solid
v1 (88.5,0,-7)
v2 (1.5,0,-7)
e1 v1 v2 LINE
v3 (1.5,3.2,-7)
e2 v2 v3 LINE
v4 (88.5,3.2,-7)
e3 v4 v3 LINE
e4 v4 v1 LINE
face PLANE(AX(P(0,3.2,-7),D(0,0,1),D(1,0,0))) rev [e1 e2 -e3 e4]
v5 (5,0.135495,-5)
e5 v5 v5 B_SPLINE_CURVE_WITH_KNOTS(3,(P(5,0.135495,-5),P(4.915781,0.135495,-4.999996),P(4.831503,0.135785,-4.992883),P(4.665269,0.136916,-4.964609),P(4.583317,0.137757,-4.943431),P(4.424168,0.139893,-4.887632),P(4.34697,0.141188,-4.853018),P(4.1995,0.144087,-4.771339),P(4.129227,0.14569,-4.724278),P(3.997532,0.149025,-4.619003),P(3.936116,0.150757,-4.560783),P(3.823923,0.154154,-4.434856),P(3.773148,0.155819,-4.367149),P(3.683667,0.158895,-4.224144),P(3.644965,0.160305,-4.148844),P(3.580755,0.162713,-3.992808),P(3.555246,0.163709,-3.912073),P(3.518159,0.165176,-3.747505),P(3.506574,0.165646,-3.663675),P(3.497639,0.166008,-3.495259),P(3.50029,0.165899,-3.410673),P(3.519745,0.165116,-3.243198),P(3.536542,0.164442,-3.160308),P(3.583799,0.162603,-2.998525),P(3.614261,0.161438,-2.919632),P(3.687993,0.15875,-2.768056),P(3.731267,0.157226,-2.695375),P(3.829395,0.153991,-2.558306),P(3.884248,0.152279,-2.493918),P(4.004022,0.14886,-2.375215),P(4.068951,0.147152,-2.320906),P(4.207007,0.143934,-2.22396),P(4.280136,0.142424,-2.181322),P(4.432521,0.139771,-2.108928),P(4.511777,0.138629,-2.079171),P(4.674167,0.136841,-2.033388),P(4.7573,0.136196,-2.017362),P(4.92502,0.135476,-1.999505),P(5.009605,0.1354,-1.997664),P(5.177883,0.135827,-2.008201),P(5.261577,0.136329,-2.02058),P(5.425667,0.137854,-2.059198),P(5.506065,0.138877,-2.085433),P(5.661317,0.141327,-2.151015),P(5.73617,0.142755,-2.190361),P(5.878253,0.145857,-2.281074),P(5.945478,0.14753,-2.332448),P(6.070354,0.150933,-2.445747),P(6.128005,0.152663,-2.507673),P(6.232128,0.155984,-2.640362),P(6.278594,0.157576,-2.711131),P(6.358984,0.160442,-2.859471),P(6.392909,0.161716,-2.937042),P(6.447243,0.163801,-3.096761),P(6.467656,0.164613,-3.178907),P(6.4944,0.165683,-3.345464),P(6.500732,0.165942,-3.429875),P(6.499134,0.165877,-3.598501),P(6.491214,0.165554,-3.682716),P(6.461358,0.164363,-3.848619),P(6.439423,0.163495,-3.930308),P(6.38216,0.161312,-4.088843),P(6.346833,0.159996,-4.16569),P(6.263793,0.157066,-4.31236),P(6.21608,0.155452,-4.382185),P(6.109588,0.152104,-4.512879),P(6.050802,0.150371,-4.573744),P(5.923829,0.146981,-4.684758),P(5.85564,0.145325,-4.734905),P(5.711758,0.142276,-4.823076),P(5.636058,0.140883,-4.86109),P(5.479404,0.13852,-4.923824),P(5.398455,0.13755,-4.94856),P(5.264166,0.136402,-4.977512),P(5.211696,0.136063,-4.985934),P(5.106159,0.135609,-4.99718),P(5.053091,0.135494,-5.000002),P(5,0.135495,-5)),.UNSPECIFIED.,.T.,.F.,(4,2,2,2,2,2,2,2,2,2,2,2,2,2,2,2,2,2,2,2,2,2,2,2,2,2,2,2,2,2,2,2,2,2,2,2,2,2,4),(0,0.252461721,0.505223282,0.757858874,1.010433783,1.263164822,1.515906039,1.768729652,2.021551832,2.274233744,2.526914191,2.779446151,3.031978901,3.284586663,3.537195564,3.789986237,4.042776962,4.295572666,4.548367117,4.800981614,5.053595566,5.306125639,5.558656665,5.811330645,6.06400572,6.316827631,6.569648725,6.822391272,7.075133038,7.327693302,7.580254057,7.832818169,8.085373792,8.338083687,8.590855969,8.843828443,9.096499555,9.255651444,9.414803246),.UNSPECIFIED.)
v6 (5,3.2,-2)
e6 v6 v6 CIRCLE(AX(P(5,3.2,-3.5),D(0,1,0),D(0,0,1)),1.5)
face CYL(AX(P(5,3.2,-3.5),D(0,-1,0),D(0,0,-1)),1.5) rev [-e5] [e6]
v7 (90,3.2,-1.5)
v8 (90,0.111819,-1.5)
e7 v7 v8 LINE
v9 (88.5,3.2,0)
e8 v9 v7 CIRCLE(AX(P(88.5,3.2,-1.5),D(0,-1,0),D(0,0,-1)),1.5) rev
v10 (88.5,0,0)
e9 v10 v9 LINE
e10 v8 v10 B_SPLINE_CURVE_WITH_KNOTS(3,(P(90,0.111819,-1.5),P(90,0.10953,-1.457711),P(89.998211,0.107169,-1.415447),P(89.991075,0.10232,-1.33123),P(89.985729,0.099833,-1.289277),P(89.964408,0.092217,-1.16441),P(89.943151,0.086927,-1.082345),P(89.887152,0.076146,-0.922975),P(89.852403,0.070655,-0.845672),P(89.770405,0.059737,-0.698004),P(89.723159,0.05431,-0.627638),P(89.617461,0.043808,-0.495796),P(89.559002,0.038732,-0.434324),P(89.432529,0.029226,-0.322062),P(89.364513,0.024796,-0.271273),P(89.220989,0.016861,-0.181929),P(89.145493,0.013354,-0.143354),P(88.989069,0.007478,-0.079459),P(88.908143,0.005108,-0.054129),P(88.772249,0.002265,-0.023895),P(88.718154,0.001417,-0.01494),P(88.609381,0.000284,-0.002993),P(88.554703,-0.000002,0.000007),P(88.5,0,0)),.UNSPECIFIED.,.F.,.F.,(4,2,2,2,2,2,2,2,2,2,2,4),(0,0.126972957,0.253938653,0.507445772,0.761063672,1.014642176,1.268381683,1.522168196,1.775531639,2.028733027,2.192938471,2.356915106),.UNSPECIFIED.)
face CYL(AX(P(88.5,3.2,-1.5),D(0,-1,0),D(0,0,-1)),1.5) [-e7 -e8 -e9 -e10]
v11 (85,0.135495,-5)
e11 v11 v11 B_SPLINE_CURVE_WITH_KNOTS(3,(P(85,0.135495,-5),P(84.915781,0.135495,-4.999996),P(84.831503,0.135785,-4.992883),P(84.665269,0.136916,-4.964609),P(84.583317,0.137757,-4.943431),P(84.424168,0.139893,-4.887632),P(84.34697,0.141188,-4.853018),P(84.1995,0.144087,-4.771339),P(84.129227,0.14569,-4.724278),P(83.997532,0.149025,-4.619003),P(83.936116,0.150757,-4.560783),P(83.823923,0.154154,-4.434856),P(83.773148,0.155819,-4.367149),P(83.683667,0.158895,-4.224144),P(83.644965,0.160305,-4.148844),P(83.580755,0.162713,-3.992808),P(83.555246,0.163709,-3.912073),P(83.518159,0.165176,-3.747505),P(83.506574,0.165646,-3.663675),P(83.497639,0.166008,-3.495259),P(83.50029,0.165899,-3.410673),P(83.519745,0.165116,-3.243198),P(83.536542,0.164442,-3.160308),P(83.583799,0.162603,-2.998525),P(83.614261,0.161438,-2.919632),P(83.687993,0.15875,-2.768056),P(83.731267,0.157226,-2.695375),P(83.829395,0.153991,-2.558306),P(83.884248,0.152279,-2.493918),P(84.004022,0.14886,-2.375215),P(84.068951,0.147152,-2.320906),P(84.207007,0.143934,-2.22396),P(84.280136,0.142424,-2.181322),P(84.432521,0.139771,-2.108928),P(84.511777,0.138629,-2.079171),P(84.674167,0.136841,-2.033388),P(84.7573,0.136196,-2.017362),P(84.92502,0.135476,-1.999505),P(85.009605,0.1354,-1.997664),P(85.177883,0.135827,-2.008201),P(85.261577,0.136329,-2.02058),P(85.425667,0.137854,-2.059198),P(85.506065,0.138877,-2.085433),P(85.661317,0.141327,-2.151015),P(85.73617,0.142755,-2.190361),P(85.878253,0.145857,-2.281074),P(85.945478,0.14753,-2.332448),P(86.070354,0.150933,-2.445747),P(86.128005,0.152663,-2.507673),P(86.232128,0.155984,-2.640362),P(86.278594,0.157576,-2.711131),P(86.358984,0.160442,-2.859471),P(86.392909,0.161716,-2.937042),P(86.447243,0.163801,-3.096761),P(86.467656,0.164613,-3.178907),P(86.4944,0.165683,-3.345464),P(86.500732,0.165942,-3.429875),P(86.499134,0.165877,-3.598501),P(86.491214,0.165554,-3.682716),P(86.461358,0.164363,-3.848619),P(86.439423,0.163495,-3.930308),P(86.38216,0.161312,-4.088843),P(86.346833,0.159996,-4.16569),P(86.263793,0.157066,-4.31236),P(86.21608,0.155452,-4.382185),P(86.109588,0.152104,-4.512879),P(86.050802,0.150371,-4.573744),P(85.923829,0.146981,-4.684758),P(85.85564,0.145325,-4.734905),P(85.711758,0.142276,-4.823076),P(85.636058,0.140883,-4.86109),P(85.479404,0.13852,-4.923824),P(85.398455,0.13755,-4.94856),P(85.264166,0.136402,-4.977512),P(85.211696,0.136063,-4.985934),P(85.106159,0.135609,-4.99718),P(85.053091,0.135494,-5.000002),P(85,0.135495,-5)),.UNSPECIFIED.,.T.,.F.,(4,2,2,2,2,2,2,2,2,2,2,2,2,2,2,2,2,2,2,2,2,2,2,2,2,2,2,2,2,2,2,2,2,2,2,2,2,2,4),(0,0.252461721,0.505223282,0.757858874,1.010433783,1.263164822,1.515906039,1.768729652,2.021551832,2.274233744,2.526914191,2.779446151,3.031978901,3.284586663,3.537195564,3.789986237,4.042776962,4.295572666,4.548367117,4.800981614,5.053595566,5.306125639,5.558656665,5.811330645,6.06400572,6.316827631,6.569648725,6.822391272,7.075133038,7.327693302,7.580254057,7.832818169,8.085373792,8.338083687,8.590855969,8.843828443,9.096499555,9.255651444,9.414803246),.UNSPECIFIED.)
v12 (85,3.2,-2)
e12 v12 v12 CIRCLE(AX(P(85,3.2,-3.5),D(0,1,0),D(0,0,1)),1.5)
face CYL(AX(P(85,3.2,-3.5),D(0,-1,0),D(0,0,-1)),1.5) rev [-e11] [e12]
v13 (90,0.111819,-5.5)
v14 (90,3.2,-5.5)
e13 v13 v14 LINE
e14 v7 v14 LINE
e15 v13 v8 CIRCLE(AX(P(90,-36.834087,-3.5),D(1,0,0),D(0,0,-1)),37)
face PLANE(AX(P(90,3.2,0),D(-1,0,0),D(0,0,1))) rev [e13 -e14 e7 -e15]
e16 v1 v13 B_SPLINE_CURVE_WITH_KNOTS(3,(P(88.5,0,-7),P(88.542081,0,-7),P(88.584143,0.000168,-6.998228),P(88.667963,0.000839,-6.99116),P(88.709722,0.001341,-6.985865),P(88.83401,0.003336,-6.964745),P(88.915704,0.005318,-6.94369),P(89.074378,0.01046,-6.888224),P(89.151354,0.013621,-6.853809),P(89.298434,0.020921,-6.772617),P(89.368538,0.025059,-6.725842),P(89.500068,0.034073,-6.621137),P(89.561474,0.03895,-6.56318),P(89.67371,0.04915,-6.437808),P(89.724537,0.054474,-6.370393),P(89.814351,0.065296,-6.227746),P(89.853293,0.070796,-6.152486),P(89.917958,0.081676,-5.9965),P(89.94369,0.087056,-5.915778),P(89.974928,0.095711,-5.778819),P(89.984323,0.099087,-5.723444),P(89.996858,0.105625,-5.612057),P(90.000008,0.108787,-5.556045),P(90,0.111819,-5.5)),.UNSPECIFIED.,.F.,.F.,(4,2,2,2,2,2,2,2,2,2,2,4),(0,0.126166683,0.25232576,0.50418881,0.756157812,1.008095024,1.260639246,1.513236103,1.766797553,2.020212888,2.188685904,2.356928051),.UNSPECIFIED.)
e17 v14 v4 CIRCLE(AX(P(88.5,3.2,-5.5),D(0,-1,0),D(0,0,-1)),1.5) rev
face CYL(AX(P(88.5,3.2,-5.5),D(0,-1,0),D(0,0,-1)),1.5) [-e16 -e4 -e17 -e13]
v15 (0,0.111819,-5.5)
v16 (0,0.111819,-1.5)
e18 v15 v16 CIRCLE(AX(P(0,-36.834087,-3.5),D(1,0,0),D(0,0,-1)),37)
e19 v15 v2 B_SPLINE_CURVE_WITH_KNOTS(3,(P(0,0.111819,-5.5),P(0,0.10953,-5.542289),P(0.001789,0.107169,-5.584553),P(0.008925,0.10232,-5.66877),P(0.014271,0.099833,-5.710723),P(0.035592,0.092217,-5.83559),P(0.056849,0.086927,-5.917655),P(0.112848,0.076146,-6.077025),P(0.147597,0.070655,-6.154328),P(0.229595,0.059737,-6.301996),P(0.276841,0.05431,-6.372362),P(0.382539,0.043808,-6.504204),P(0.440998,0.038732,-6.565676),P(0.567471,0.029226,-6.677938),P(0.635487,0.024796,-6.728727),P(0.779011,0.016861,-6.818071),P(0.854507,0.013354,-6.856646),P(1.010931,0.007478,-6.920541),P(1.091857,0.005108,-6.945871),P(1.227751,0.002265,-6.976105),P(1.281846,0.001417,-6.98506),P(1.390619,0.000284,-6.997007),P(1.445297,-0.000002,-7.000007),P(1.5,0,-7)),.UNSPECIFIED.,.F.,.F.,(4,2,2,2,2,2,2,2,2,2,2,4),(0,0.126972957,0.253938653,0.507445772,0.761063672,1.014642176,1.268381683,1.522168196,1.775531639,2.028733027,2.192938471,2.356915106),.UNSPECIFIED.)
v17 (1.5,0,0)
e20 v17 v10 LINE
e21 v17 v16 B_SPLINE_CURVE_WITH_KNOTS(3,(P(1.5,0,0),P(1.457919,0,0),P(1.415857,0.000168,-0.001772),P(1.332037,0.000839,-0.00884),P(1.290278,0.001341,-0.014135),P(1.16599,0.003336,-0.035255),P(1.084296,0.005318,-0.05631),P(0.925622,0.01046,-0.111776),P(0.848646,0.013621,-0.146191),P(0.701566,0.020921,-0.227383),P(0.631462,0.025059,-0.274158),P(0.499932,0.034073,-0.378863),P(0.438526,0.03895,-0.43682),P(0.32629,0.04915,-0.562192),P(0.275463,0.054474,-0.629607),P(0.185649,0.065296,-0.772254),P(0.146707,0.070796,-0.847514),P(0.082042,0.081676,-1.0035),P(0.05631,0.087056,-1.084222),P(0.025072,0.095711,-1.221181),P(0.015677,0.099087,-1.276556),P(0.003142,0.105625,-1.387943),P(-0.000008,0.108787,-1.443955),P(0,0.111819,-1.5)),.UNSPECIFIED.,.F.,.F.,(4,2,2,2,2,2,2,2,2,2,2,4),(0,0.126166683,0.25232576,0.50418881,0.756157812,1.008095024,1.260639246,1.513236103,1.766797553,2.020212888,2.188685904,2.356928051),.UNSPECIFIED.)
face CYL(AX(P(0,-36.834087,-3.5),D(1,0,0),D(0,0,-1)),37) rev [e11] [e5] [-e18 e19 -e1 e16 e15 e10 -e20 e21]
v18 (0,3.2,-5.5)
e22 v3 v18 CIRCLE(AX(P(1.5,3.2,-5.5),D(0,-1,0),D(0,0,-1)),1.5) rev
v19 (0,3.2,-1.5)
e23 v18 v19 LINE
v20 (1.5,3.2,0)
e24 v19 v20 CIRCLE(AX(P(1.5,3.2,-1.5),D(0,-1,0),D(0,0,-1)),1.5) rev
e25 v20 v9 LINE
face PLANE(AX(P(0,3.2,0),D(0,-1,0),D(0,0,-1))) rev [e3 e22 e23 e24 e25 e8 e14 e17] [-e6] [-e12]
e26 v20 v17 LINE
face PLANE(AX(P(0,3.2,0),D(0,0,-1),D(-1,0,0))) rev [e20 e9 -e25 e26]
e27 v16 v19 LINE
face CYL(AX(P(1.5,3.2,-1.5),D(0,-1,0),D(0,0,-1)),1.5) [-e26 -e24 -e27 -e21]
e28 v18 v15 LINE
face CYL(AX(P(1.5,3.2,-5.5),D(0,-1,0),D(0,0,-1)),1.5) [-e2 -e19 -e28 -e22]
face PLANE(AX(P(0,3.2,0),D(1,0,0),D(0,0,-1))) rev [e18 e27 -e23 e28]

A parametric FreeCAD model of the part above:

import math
import FreeCAD as App
import Part
import Sketcher

V = App.Vector


def edges_at(feature, points):
    """Names of the edges that pass closest to the given points."""
    edges = feature.Shape.Edges
    near = lambda p: min(range(len(edges)), key=lambda i: edges[i].distToShape(Part.Vertex(*p))[0])
    return sorted({f"Edge{near(p) + 1}" for p in points})


def add_polygon(sketch, points):
    """Adds a closed chain of lines whose ends are joined by coincident constraints."""
    first, n = sketch.GeometryCount, len(points)
    for a, b in zip(points, points[1:] + points[:1]):
        sketch.addGeometry(Part.LineSegment(App.Vector(*a, 0), App.Vector(*b, 0)), False)
    for i in range(n):
        sketch.addConstraint(Sketcher.Constraint("Coincident", first + i, 2, first + (i + 1) % n, 1))

doc = App.newDocument("Part")
body = doc.addObject("PartDesign::Body", "Body")

sketch1 = body.newObject("Sketcher::SketchObject", "Sketch")
sketch1.AttachmentSupport = (doc.getObject("XZ_Plane"), [""])
sketch1.MapMode = "FlatFace"
add_polygon(sketch1, [(0, -7), (0, 0), (90, 0), (90, -7)])
sketch1.addGeometry(Part.Circle(V(5, -3.5, 0), V(0, 0, 1), 1.5), False)
sketch1.addGeometry(Part.Circle(V(85, -3.5, 0), V(0, 0, 1), 1.5), False)
sketch1.addConstraint([
    Sketcher.Constraint("Vertical", 0),
    Sketcher.Constraint("Horizontal", 1),
    Sketcher.Constraint("Vertical", 2),
    Sketcher.Constraint("Horizontal", 3),
    Sketcher.Constraint("Coincident", 0, 2, -1, 1),
    Sketcher.Constraint("Equal", 4, 5),
    Sketcher.Constraint("Horizontal", 4, 3, 5, 3),
    Sketcher.Constraint("Diameter", 4, 3.0),
    Sketcher.Constraint("DistanceX", 1, 1, 1, 2, 90.0),
    Sketcher.Constraint("DistanceY", 0, 1, 0, 2, 7.0),
    Sketcher.Constraint("DistanceX", -1, 1, 4, 3, 5.0),
    Sketcher.Constraint("DistanceX", -1, 1, 5, 3, 85.0),
    Sketcher.Constraint("DistanceY", 4, 3, -1, 1, 3.5),
])
pad1 = body.newObject("PartDesign::Pad", "Pad")
pad1.Profile = sketch1
pad1.Length = 3.2
pad1.Reversed = True

sketch2 = body.newObject("Sketcher::SketchObject", "Sketch001")
sketch2.AttachmentSupport = (doc.getObject("YZ_Plane"), [""])
sketch2.MapMode = "FlatFace"
sketch2.AttachmentOffset = App.Placement(V(0, 0, 90), App.Rotation())
sketch2.addGeometry([
    Part.LineSegment(V(0, 0, 0), V(0, -7, 0)),
    Part.ArcOfCircle(Part.Circle(V(-37, -4, 0), V(0, 0, 1), 37), math.radians(-5.43), math.radians(5.43)),
], False)
sketch2.addConstraint([
    Sketcher.Constraint("Coincident", 0, 1, 1, 2),
    Sketcher.Constraint("Coincident", 1, 1, 0, 2),
    Sketcher.Constraint("Vertical", 0),
    Sketcher.Constraint("Coincident", 0, 1, -1, 1),
    Sketcher.Constraint("Radius", 1, 37.0),
    Sketcher.Constraint("DistanceY", 0, 2, 0, 1, 7.0),
])
pocket1 = body.newObject("PartDesign::Pocket", "Pocket")
pocket1.Profile = sketch2
pocket1.Type = "ThroughAll"
pocket1.Midplane = True
doc.recompute()

fillet = body.newObject("PartDesign::Fillet", "Fillet")
fillet.Base = (pocket1, edges_at(pocket1, [
    (0, 1.6, -7),
    (90, 1.6, -7),
    (90, 1.6, 0),
    (0, 1.6, 0),
]))
fillet.Radius = 1.5

doc.recompute()
